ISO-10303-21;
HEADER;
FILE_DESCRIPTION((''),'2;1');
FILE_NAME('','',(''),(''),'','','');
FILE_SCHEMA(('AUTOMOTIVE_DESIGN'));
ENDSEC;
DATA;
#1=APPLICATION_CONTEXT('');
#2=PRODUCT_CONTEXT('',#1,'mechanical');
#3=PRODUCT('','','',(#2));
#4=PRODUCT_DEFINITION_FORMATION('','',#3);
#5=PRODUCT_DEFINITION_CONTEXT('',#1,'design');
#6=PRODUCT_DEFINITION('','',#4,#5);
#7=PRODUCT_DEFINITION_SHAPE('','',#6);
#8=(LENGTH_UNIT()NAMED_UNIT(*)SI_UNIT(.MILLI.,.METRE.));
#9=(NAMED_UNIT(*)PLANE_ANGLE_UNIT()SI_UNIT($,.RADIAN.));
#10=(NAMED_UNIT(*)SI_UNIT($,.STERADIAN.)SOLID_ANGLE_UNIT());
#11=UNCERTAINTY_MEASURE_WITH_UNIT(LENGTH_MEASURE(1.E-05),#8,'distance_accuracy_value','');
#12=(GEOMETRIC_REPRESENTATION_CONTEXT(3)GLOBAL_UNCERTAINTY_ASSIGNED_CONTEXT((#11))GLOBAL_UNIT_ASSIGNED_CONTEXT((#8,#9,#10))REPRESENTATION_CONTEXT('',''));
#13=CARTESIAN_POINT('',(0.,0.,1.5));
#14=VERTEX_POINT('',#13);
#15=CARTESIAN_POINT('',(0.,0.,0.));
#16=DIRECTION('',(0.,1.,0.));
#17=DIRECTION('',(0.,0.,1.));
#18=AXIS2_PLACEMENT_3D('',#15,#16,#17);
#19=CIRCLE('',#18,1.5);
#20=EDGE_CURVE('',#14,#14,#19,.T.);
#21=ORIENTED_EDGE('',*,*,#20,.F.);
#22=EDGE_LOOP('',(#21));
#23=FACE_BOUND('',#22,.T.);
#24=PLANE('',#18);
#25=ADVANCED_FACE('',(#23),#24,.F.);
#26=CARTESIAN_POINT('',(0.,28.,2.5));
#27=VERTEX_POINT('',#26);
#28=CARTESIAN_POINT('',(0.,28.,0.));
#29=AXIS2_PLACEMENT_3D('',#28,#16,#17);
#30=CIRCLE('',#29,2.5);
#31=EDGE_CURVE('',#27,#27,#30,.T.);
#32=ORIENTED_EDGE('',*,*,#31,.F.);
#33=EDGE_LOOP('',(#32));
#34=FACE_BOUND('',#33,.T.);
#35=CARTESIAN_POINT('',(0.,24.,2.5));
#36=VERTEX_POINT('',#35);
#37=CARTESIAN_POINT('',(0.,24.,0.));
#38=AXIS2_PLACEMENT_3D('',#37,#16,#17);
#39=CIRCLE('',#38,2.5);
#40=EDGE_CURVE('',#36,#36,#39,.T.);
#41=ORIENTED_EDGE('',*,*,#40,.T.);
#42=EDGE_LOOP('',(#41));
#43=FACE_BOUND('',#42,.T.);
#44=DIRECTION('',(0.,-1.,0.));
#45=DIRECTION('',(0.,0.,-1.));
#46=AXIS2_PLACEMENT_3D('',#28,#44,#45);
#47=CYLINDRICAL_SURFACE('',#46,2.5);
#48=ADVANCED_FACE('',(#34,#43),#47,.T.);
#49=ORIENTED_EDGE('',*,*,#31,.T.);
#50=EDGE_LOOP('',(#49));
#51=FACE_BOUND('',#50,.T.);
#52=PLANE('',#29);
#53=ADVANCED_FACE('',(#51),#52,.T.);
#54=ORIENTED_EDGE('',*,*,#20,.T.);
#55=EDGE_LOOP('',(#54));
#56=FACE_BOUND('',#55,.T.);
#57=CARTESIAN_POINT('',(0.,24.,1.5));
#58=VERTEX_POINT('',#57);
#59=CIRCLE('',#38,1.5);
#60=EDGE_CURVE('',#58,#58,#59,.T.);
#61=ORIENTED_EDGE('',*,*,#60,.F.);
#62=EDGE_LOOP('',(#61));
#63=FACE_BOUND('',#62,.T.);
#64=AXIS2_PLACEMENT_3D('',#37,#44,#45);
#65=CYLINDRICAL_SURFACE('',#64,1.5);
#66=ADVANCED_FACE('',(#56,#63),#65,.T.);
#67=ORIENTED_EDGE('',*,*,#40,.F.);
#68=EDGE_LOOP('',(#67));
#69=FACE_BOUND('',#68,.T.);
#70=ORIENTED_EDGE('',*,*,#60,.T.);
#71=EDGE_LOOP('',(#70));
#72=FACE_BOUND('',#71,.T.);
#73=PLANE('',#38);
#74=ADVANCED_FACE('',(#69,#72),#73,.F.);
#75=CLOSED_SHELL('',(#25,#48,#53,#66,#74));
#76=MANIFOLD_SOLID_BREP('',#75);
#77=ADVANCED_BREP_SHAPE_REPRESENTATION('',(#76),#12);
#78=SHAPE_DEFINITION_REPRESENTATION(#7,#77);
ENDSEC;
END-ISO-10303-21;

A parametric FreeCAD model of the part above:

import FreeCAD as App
import Part
import Sketcher

doc = App.newDocument("Part")
body = doc.addObject("PartDesign::Body", "Body")

# Sketch on XZ plane
sketch1 = body.newObject("Sketcher::SketchObject", "Sketch")
sketch1.AttachmentSupport = (doc.getObject("XZ_Plane"), [""])
sketch1.MapMode = "FlatFace"
sketch1.addGeometry(Part.Circle(App.Vector(0, 0, 0), App.Vector(0, 0, 1), 1.5), False)
sketch1.addConstraint(Sketcher.Constraint("Coincident", 0, 3, -1, 1))
sketch1.addConstraint(Sketcher.Constraint("Diameter", 0, 3.0))
pad1 = body.newObject("PartDesign::Pad", "Pad")
pad1.Profile = sketch1
pad1.Length = 24
pad1.Reversed = True

# Sketch on XZ plane
sketch2 = body.newObject("Sketcher::SketchObject", "Sketch001")
sketch2.AttachmentSupport = (doc.getObject("XZ_Plane"), [""])
sketch2.MapMode = "FlatFace"
sketch2.AttachmentOffset = App.Placement(App.Vector(0, 0, -24), App.Rotation())
sketch2.addGeometry(Part.Circle(App.Vector(0, 0, 0), App.Vector(0, 0, 1), 2.5), False)
sketch2.addConstraint(Sketcher.Constraint("Coincident", 0, 3, -1, 1))
sketch2.addConstraint(Sketcher.Constraint("Diameter", 0, 5.0))
pad2 = body.newObject("PartDesign::Pad", "Pad001")
pad2.Profile = sketch2
pad2.Length = 4
pad2.Reversed = True

doc.recompute()
